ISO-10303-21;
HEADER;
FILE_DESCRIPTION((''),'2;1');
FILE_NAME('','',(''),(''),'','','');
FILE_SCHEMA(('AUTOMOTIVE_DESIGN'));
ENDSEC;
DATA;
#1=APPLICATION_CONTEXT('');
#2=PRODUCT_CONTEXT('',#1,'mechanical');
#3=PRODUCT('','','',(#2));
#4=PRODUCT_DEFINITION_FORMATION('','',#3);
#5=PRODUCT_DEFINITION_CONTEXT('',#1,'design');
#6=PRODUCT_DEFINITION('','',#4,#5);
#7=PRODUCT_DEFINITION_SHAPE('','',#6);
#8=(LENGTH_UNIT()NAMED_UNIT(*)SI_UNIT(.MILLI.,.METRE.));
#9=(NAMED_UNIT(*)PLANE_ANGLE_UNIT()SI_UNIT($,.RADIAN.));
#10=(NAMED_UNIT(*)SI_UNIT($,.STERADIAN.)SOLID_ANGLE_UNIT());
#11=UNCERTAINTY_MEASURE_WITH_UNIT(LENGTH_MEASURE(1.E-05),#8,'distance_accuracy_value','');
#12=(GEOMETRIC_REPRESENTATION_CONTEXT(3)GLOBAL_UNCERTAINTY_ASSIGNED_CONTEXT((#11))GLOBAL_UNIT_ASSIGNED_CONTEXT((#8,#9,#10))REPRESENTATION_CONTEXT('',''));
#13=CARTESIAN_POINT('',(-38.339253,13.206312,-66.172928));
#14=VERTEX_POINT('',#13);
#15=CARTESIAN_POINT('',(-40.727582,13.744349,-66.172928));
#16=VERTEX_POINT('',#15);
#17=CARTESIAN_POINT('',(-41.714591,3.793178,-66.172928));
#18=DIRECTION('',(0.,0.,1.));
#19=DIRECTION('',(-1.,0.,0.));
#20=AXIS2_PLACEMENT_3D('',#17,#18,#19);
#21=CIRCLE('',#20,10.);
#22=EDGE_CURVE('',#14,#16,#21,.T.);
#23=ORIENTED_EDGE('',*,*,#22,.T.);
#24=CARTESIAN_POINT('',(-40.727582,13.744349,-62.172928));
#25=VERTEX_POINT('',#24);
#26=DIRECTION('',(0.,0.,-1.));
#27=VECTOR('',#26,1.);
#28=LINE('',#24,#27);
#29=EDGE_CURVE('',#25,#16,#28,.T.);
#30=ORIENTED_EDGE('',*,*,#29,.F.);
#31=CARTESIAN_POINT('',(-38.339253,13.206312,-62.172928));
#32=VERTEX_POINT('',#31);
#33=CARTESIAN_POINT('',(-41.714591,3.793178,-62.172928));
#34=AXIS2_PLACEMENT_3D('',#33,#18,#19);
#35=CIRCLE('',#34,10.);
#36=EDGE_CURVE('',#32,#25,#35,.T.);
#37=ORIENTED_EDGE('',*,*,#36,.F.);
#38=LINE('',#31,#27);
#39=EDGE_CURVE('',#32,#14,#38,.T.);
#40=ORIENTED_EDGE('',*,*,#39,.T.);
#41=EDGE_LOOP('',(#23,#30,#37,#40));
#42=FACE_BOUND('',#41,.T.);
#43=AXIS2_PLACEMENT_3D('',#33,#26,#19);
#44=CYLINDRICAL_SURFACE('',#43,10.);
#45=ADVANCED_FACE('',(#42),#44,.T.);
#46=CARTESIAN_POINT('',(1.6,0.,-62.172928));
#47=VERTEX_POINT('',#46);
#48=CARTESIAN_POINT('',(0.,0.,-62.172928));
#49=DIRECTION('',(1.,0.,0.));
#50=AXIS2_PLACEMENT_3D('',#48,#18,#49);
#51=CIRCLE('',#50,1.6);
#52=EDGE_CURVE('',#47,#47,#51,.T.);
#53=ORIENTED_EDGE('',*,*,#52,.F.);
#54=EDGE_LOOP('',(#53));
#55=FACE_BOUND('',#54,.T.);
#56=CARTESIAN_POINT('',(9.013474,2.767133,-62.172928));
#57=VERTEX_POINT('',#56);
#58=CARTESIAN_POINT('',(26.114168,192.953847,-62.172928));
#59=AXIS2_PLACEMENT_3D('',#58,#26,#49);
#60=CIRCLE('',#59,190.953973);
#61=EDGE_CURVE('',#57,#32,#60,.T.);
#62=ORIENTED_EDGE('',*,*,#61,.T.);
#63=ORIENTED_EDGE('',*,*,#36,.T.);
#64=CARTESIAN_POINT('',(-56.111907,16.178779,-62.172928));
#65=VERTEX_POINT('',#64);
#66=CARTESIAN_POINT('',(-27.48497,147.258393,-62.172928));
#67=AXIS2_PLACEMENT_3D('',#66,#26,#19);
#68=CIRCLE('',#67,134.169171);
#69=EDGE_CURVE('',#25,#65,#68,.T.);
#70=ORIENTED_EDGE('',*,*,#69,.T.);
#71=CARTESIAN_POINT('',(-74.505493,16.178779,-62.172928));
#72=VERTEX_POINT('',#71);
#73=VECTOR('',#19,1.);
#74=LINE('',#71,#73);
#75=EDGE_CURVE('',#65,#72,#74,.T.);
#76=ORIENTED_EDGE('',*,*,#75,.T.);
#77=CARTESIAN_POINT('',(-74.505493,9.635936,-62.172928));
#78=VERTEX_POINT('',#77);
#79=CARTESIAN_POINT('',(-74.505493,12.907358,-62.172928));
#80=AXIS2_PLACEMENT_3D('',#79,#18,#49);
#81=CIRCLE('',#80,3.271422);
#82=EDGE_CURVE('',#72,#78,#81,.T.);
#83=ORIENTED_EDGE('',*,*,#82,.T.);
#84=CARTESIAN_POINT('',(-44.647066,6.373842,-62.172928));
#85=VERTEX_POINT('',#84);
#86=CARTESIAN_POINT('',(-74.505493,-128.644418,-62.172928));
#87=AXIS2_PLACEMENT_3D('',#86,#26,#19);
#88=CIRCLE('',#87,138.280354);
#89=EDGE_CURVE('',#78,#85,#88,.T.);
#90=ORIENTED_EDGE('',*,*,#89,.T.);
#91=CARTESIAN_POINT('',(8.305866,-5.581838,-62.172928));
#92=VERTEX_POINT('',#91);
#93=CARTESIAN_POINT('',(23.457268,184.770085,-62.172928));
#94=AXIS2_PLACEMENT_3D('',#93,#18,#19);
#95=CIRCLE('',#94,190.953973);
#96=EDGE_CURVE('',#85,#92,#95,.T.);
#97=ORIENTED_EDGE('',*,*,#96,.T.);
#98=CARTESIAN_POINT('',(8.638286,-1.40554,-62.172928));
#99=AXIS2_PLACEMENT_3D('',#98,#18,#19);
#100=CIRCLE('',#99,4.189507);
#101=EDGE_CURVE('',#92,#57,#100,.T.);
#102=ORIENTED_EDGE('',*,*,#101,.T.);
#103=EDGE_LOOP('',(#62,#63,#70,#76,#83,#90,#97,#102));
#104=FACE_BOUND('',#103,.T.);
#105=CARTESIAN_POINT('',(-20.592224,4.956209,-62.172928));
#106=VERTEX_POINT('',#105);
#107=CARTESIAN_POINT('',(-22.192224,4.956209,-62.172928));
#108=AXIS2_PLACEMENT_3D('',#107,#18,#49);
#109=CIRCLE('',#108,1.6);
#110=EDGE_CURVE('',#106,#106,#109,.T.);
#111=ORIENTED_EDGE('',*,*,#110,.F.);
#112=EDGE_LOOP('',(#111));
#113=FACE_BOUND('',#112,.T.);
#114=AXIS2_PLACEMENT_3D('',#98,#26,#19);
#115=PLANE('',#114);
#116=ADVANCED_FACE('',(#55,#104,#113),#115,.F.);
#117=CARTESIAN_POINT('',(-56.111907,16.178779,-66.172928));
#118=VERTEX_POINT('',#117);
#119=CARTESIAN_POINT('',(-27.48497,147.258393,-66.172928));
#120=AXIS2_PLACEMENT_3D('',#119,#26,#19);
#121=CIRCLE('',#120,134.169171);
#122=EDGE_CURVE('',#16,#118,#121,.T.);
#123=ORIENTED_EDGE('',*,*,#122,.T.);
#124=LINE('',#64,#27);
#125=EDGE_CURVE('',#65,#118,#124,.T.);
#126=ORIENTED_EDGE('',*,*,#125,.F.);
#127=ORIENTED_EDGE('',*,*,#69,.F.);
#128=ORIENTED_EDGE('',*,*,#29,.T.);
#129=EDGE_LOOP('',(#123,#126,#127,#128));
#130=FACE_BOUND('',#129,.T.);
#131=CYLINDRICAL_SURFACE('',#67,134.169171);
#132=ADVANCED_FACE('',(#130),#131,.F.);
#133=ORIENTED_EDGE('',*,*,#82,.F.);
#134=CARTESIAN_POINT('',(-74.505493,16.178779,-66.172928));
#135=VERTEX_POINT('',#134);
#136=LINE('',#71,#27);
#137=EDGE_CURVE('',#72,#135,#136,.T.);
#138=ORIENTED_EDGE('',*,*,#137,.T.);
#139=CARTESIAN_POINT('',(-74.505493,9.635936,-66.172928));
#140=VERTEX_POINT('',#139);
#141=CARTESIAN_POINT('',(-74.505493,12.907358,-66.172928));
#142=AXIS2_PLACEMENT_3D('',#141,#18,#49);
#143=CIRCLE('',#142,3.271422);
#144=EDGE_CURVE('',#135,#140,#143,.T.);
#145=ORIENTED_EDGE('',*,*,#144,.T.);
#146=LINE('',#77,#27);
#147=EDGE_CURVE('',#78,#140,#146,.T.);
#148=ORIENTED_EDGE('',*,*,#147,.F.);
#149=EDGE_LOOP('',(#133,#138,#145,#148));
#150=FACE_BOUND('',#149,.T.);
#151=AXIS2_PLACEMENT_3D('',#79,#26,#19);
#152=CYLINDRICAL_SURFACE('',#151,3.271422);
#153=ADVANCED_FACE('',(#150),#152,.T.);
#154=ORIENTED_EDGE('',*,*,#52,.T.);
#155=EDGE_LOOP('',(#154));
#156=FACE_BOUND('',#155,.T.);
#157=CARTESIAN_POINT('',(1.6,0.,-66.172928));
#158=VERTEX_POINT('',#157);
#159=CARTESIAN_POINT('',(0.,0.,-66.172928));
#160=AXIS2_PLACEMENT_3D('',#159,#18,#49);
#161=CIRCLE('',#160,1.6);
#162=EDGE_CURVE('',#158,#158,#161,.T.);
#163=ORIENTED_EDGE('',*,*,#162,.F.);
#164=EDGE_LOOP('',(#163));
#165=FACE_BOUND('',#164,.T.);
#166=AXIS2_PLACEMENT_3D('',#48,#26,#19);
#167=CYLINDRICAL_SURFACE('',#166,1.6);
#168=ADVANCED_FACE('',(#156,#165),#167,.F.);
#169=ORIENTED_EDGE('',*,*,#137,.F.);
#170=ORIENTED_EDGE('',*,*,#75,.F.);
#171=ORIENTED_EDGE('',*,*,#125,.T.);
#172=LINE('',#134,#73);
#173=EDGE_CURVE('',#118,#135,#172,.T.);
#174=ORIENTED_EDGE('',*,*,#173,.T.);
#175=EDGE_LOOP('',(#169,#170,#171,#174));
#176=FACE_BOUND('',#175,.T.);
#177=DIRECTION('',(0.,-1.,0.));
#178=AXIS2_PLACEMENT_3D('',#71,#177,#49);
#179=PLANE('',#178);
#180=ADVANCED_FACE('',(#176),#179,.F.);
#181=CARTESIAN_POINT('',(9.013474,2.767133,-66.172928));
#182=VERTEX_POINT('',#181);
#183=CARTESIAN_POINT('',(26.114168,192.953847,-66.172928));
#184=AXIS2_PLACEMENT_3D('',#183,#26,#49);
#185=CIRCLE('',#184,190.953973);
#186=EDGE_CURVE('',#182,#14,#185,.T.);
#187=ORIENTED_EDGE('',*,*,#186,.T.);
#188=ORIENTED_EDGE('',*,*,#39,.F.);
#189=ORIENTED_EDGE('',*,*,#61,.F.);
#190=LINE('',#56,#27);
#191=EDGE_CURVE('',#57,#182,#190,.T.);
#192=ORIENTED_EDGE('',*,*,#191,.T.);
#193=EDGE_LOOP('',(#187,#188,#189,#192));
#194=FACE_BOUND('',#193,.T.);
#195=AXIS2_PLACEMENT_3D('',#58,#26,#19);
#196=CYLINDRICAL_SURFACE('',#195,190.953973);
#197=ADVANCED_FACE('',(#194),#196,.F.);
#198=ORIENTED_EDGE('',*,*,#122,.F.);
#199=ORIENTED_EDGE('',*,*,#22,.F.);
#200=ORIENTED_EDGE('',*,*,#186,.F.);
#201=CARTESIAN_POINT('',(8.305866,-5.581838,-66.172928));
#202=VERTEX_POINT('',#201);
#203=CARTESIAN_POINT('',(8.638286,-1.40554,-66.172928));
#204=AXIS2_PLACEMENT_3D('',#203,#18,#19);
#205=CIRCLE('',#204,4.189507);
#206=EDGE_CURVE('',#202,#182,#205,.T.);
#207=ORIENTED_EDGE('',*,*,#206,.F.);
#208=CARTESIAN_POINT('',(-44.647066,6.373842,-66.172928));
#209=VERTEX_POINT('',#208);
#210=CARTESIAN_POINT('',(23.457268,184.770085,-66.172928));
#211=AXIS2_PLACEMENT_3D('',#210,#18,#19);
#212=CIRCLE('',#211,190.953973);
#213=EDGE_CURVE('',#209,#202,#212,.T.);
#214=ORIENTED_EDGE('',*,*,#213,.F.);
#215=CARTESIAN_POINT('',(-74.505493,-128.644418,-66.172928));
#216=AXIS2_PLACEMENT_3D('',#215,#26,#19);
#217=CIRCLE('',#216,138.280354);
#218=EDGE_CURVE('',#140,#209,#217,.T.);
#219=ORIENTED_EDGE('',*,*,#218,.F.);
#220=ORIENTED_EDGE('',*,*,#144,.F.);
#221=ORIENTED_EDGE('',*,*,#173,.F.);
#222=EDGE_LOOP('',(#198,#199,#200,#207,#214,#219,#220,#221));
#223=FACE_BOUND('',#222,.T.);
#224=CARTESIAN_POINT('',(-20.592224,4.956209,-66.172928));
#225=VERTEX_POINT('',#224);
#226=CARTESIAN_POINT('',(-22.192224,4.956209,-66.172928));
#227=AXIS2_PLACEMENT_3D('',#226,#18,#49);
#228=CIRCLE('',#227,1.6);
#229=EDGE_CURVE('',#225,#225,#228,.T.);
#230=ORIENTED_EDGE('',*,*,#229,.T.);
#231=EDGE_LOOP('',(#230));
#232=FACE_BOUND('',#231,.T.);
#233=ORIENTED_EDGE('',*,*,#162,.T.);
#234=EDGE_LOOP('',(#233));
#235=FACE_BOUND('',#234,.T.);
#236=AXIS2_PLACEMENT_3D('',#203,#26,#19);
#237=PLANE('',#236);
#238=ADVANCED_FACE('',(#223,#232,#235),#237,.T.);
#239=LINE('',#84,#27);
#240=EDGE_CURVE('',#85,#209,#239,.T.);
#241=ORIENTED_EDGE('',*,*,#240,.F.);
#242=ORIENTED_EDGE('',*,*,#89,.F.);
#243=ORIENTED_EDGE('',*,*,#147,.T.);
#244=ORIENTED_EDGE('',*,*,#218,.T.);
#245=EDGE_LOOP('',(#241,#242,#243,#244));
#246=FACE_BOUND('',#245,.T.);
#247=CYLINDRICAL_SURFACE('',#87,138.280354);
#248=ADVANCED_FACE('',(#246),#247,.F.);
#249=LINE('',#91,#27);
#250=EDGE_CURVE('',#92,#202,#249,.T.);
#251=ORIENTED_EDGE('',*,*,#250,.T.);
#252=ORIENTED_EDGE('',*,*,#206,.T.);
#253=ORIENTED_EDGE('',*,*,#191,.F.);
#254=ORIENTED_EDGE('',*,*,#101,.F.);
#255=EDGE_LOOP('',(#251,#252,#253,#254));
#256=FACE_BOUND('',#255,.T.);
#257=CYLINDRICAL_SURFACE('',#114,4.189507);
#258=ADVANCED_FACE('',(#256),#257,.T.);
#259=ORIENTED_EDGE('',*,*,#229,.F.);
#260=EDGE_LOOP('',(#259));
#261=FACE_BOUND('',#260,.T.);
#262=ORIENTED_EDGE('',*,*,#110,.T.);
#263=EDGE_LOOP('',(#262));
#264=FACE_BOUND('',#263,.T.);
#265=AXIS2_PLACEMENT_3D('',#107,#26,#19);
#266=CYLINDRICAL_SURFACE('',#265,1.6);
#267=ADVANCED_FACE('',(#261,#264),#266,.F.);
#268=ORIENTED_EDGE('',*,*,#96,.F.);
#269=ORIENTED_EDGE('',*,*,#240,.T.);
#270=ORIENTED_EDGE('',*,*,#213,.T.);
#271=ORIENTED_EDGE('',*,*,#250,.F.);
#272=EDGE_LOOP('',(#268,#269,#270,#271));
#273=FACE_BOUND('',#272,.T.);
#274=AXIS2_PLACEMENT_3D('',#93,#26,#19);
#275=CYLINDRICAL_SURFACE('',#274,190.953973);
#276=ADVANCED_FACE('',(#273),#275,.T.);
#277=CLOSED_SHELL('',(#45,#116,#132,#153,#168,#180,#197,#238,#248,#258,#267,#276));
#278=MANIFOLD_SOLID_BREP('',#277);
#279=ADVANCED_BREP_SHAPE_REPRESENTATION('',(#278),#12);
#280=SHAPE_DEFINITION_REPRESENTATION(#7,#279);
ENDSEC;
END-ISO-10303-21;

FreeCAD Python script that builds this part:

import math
import FreeCAD as App
import Part
import Sketcher
Q = App.Units.Quantity

doc = App.newDocument("Part")
body = doc.addObject("PartDesign::Body", "Body")

# Sketch on XY plane
sketch1 = body.newObject("Sketcher::SketchObject", "Sketch")
sketch1.AttachmentSupport = (doc.getObject("XY_Plane"), [""])
sketch1.MapMode = "FlatFace"
sketch1.AttachmentOffset = App.Placement(App.Vector(0, 0, -66.172928), App.Rotation())
sketch1.addGeometry(Part.LineSegment(App.Vector(-56.111907, 16.178779, 0), App.Vector(-74.505493, 16.178779, 0)), False)
sketch1.addGeometry(Part.ArcOfCircle(Part.Circle(App.Vector(-74.505493, 12.907358, 0), App.Vector(0, 0, 1), 3.271422), math.radians(90), math.radians(270)), False)
sketch1.addGeometry(Part.ArcOfCircle(Part.Circle(App.Vector(-74.505493, -128.644418, 0), App.Vector(0, 0, 1), 138.280354), math.radians(77.530097), math.radians(90)), False)
sketch1.addGeometry(Part.ArcOfCircle(Part.Circle(App.Vector(23.457268, 184.770085, 0), App.Vector(0, 0, 1), 190.953973), math.radians(-110.894796), math.radians(-94.550965)), False)
sketch1.addGeometry(Part.ArcOfCircle(Part.Circle(App.Vector(8.638286, -1.40554, 0), App.Vector(0, 0, 1), 4.189507), math.radians(-94.550965), math.radians(84.86205)), False)
sketch1.addGeometry(Part.ArcOfCircle(Part.Circle(App.Vector(26.114168, 192.953847, 0), App.Vector(0, 0, 1), 190.953973), math.radians(-109.726691), math.radians(-95.13795)), False)
sketch1.addGeometry(Part.ArcOfCircle(Part.Circle(App.Vector(-41.714591, 3.793178, 0), App.Vector(0, 0, 1), 10), math.radians(70.273309), math.radians(84.335635)), False)
sketch1.addGeometry(Part.ArcOfCircle(Part.Circle(App.Vector(-27.48497, 147.258392, 0), App.Vector(0, 0, 1), 134.169171), math.radians(-102.319593), math.radians(-95.664365)), False)
sketch1.addGeometry(Part.Circle(App.Vector(0, 0, 0), App.Vector(0, 0, 1), 1.6), False)
sketch1.addGeometry(Part.Circle(App.Vector(-22.192224, 4.956209, 0), App.Vector(0, 0, 1), 1.6), False)
sketch1.addConstraint(Sketcher.Constraint("Tangent", 0, 2, 1, 1))
sketch1.addConstraint(Sketcher.Constraint("Tangent", 1, 2, 2, 2))
sketch1.addConstraint(Sketcher.Constraint("Coincident", 2, 1, 3, 1))
sketch1.addConstraint(Sketcher.Constraint("Tangent", 3, 2, 4, 1))
sketch1.addConstraint(Sketcher.Constraint("Tangent", 4, 2, 5, 2))
sketch1.addConstraint(Sketcher.Constraint("Tangent", 5, 1, 6, 1))
sketch1.addConstraint(Sketcher.Constraint("Tangent", 6, 2, 7, 2))
sketch1.addConstraint(Sketcher.Constraint("Coincident", 7, 1, 0, 1))
sketch1.addConstraint(Sketcher.Constraint("Horizontal", 0))
sketch1.addConstraint(Sketcher.Constraint("Coincident", 8, 3, -1, 1))
sketch1.addConstraint(Sketcher.Constraint("Equal", 3, 5))
sketch1.addConstraint(Sketcher.Constraint("Equal", 8, 9))
sketch1.addConstraint(Sketcher.Constraint("Vertical", 1, 3, 2, 3))
sketch1.addConstraint(Sketcher.Constraint("Radius", 6, Q("10 mm")))
sketch1.addConstraint(Sketcher.Constraint("Diameter", 8, Q("3.2 mm")))
sketch1.addConstraint(Sketcher.Constraint("Radius", 1, Q("3.271422 mm")))
sketch1.addConstraint(Sketcher.Constraint("Radius", 7, Q("134.169171 mm")))
sketch1.addConstraint(Sketcher.Constraint("Radius", 2, Q("138.280354 mm")))
sketch1.addConstraint(Sketcher.Constraint("Radius", 3, Q("190.953973 mm")))
sketch1.addConstraint(Sketcher.Constraint("Radius", 4, Q("4.189507 mm")))
sketch1.addConstraint(Sketcher.Constraint("DistanceX", 3, 3, 5, 3, Q("2.6569 mm")))
sketch1.addConstraint(Sketcher.Constraint("DistanceY", 6, 3, 0, 2, Q("12.385601 mm")))
sketch1.addConstraint(Sketcher.Constraint("DistanceX", 0, 2, 0, 1, Q("18.393586 mm")))
sketch1.addConstraint(Sketcher.Constraint("DistanceX", -1, 1, 3, 3, Q("23.457268 mm")))
sketch1.addConstraint(Sketcher.Constraint("DistanceY", 4, 3, -1, 1, Q("1.40554 mm")))
sketch1.addConstraint(Sketcher.Constraint("DistanceX", 6, 3, -1, 1, Q("41.714591 mm")))
sketch1.addConstraint(Sketcher.Constraint("DistanceX", 7, 3, -1, 1, Q("27.48497 mm")))
sketch1.addConstraint(Sketcher.Constraint("DistanceY", -1, 1, 9, 3, Q("4.956209 mm")))
sketch1.addConstraint(Sketcher.Constraint("DistanceY", -1, 1, 0, 2, Q("16.178779 mm")))
sketch1.addConstraint(Sketcher.Constraint("DistanceX", 9, 3, 4, 3, Q("30.830511 mm")))
pad1 = body.newObject("PartDesign::Pad", "Pad")
pad1.Profile = sketch1
pad1.Length = 4

doc.recompute()
